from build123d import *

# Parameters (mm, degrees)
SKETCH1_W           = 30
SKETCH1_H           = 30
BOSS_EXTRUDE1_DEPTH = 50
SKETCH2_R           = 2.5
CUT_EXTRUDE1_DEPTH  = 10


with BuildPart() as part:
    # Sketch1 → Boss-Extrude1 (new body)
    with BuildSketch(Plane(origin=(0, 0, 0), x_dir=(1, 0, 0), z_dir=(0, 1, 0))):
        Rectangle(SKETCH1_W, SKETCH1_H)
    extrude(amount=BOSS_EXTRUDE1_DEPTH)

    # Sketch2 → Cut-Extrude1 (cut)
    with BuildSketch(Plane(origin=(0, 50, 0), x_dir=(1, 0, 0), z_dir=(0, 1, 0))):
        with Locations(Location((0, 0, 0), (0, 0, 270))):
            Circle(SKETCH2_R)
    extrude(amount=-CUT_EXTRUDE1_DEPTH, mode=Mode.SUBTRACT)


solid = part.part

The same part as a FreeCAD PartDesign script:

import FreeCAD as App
import Part
import Sketcher

V = App.Vector


def add_polygon(sketch, points):
    """Adds a closed chain of lines whose ends are joined by coincident constraints."""
    first, n = sketch.GeometryCount, len(points)
    for a, b in zip(points, points[1:] + points[:1]):
        sketch.addGeometry(Part.LineSegment(App.Vector(*a, 0), App.Vector(*b, 0)), False)
    for i in range(n):
        sketch.addConstraint(Sketcher.Constraint("Coincident", first + i, 2, first + (i + 1) % n, 1))

doc = App.newDocument("Part")
body = doc.addObject("PartDesign::Body", "Body")

sketch1 = doc.addObject("Sketcher::SketchObject", "Sketch")
body.addObject(sketch1)
sketch1.AttachmentSupport = (doc.XZ_Plane, [""])
sketch1.MapMode = "FlatFace"
add_polygon(sketch1, [(-15, -15), (-15, 15), (15, 15), (15, -15)])
sketch1.addConstraint([
    Sketcher.Constraint("Vertical", 0),
    Sketcher.Constraint("Horizontal", 1),
    Sketcher.Constraint("Vertical", 2),
    Sketcher.Constraint("Horizontal", 3),
    Sketcher.Constraint("Symmetric", 0, 2, 2, 2, -1, 1),
    Sketcher.Constraint("Equal", 3, 0),
    Sketcher.Constraint("DistanceX", 1, 1, 1, 2, 30.0),
])
pad1 = doc.addObject("PartDesign::Pad", "Pad")
body.addObject(pad1)
pad1.Profile = sketch1
pad1.Length = 50
pad1.Reversed = True

sketch2 = doc.addObject("Sketcher::SketchObject", "Sketch001")
body.addObject(sketch2)
sketch2.AttachmentSupport = (doc.XZ_Plane, [""])
sketch2.MapMode = "FlatFace"
sketch2.AttachmentOffset = App.Placement(V(0, 0, -50), App.Rotation())
sketch2.addGeometry(Part.Circle(V(0, 0, 0), V(0, 0, 1), 2.5), False)
sketch2.addConstraint([
    Sketcher.Constraint("Coincident", 0, 3, -1, 1),
    Sketcher.Constraint("Diameter", 0, 5.0),
])
pocket1 = doc.addObject("PartDesign::Pocket", "Pocket")
body.addObject(pocket1)
pocket1.Profile = sketch2
pocket1.Length = 10
pocket1.Reversed = True

doc.recompute()
